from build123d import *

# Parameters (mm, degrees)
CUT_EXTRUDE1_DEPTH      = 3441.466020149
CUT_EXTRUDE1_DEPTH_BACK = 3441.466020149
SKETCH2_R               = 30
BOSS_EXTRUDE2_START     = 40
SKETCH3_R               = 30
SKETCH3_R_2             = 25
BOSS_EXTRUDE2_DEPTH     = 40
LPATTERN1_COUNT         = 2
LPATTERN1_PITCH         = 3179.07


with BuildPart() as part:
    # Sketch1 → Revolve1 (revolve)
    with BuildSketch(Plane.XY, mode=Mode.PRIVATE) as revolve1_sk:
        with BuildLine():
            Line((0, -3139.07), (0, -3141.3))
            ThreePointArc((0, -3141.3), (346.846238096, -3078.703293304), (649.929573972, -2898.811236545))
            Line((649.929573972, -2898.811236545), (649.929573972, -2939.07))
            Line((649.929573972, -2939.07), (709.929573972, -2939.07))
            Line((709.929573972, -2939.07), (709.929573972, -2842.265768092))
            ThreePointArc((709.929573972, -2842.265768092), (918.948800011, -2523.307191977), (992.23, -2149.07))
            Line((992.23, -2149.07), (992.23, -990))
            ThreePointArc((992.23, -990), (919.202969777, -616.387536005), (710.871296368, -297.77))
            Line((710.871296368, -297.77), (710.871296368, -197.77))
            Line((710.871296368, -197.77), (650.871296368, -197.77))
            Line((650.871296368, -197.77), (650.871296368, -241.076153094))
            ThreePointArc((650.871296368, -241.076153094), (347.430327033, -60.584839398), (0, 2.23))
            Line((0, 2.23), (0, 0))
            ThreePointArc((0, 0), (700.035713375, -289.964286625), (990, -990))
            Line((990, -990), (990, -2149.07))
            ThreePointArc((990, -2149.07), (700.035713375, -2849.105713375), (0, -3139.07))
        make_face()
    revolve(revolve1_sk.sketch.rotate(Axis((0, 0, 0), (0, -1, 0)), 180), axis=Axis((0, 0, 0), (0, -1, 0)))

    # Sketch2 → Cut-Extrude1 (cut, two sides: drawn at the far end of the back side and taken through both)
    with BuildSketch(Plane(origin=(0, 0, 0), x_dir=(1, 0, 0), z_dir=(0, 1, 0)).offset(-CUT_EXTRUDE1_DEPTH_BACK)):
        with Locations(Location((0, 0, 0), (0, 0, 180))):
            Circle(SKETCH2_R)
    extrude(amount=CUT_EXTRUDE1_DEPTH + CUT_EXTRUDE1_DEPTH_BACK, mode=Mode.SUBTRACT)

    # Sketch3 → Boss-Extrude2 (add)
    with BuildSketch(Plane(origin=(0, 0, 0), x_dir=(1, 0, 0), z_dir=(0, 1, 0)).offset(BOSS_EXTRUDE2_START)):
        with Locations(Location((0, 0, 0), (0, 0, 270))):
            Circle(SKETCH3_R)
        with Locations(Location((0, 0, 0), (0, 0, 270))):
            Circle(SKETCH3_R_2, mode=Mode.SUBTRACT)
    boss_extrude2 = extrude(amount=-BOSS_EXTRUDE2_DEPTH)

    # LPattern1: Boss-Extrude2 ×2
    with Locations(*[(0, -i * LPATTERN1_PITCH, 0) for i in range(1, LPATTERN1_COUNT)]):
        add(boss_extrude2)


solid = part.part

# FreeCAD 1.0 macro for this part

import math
import FreeCAD as App
import Part
import Sketcher

V = App.Vector
Q = App.Units.Quantity

doc = App.newDocument("Part")
body = doc.addObject("PartDesign::Body", "Body")

# Sketch on XY plane
sketch1 = body.newObject("Sketcher::SketchObject", "Sketch")
sketch1.AttachmentSupport = (doc.getObject("XY_Plane"), [""])
sketch1.MapMode = "FlatFace"
sketch1.addGeometry([
    Part.LineSegment(V(0, -3139.07, 0), V(0, -3141.3, 0)),  # 0
    Part.ArcOfCircle(Part.Circle(V(0, -2149.07, 0), V(0, 0, 1), 992.23), math.radians(-90), math.radians(-49.078904)),  # 1
    Part.LineSegment(V(649.929574, -2898.811237, 0), V(649.929574, -2939.07, 0)),  # 2
    Part.LineSegment(V(649.929574, -2939.07, 0), V(709.929574, -2939.07, 0)),  # 3
    Part.LineSegment(V(709.929574, -2939.07, 0), V(709.929574, -2842.265768, 0)),  # 4
    Part.ArcOfCircle(Part.Circle(V(0, -2149.07, 0), V(0, 0, 1), 992.23), math.radians(-44.316717), math.radians(0)),  # 5
    Part.LineSegment(V(992.23, -2149.07, 0), V(992.23, -990, 0)),  # 6
    Part.ArcOfCircle(Part.Circle(V(0, -990, 0), V(0, 0, 1), 992.23), math.radians(0), math.radians(44.238826)),  # 7
    Part.LineSegment(V(710.871296, -297.77, 0), V(710.871296, -197.77, 0)),  # 8
    Part.LineSegment(V(710.871296, -197.77, 0), V(650.871296, -197.77, 0)),  # 9
    Part.LineSegment(V(650.871296, -197.77, 0), V(650.871296, -241.076153, 0)),  # 10
    Part.ArcOfCircle(Part.Circle(V(0, -990, 0), V(0, 0, 1), 992.23), math.radians(49.006898), math.radians(90)),  # 11
    Part.LineSegment(V(0, 2.23, 0), V(0, 0, 0)),  # 12
    Part.ArcOfCircle(Part.Circle(V(0, -990, 0), V(0, 0, 1), 990), math.radians(0), math.radians(90)),  # 13
    Part.LineSegment(V(990, -990, 0), V(990, -2149.07, 0)),  # 14
    Part.ArcOfCircle(Part.Circle(V(0, -2149.07, 0), V(0, 0, 1), 990), math.radians(-90), math.radians(0)),  # 15
], False)
sketch1.addConstraint([
    Sketcher.Constraint("Coincident", 0, 2, 1, 1),
    Sketcher.Constraint("Coincident", 1, 2, 2, 1),
    Sketcher.Constraint("Coincident", 2, 2, 3, 1),
    Sketcher.Constraint("Coincident", 3, 2, 4, 1),
    Sketcher.Constraint("Coincident", 4, 2, 5, 1),
    Sketcher.Constraint("Coincident", 5, 2, 6, 1),
    Sketcher.Constraint("Coincident", 6, 2, 7, 1),
    Sketcher.Constraint("Coincident", 7, 2, 8, 1),
    Sketcher.Constraint("Coincident", 8, 2, 9, 1),
    Sketcher.Constraint("Coincident", 9, 2, 10, 1),
    Sketcher.Constraint("Coincident", 10, 2, 11, 1),
    Sketcher.Constraint("Coincident", 11, 2, 12, 1),
    Sketcher.Constraint("Coincident", 12, 2, 13, 2),
    Sketcher.Constraint("Coincident", 13, 1, 14, 1),
    Sketcher.Constraint("Coincident", 14, 2, 15, 2),
    Sketcher.Constraint("Coincident", 15, 1, 0, 1),
    Sketcher.Constraint("Vertical", 0),
    Sketcher.Constraint("Vertical", 2),
    Sketcher.Constraint("Horizontal", 3),
    Sketcher.Constraint("Vertical", 4),
    Sketcher.Constraint("Vertical", 6),
    Sketcher.Constraint("Vertical", 8),
    Sketcher.Constraint("Horizontal", 9),
    Sketcher.Constraint("Vertical", 10),
    Sketcher.Constraint("Vertical", 12),
    Sketcher.Constraint("Vertical", 14),
    Sketcher.Constraint("Coincident", 12, 2, -1, 1),
    Sketcher.Constraint("Coincident", 5, 3, 1, 3),
    Sketcher.Constraint("Coincident", 11, 3, 7, 3),
    Sketcher.Constraint("Coincident", 13, 3, 7, 3),
    Sketcher.Constraint("Coincident", 15, 3, 1, 3),
    Sketcher.Constraint("Equal", 1, 5),
    Sketcher.Constraint("Equal", 5, 7),
    Sketcher.Constraint("Equal", 7, 11),
    Sketcher.Constraint("PointOnObject", 1, 3, -2),
    Sketcher.Constraint("PointOnObject", 0, 2, -2),
    Sketcher.Constraint("Horizontal", 13, 3, 6, 2),
    Sketcher.Constraint("Equal", 3, 9),
    Sketcher.Constraint("Equal", 6, 14),
    Sketcher.Constraint("Radius", 13, Q("990 mm")),
    Sketcher.Constraint("DistanceX", 3, 1, 3, 2, Q("60 mm")),
    Sketcher.Constraint("DistanceY", 8, 1, 8, 2, Q("100 mm")),
    Sketcher.Constraint("Radius", 1, Q("992.23 mm")),
    Sketcher.Constraint("DistanceY", 2, 2, 1, 3, Q("790 mm")),
    Sketcher.Constraint("DistanceY", 9, 2, 11, 2, Q("200 mm")),
    Sketcher.Constraint("DistanceY", 3, 2, 14, 2, Q("790 mm")),
    Sketcher.Constraint("DistanceY", 6, 1, 6, 2, Q("1159.07 mm")),
    Sketcher.Constraint("DistanceY", 0, 2, -1, 1, Q("3141.3 mm")),
    Sketcher.Constraint("DistanceY", 4, 1, 4, 2, Q("96.804232 mm")),
])
revolution = body.newObject("PartDesign::Revolution", "Revolution")
revolution.Profile = sketch1
revolution.ReferenceAxis = (sketch1, ["V_Axis"])
revolution.Angle = 360

# Sketch on XZ plane
sketch2 = body.newObject("Sketcher::SketchObject", "Sketch001")
sketch2.AttachmentSupport = (doc.getObject("XZ_Plane"), [""])
sketch2.MapMode = "FlatFace"
sketch2.addGeometry(Part.Circle(V(0, 0, 0), V(0, 0, 1), 30), False)
sketch2.addConstraint([
    Sketcher.Constraint("Coincident", 0, 3, -1, 1),
    Sketcher.Constraint("Diameter", 0, Q("60 mm")),
])
pocket1 = body.newObject("PartDesign::Pocket", "Pocket")
pocket1.Profile = sketch2
pocket1.Type = "ThroughAll"
pocket1.Midplane = True

# Sketch on XZ plane
sketch3 = body.newObject("Sketcher::SketchObject", "Sketch002")
sketch3.AttachmentSupport = (doc.getObject("XZ_Plane"), [""])
sketch3.MapMode = "FlatFace"
sketch3.AttachmentOffset = App.Placement(V(0, 0, -40), App.Rotation())
sketch3.addGeometry([
    Part.Circle(V(0, 0, 0), V(0, 0, 1), 30),
    Part.Circle(V(0, 0, 0), V(0, 0, 1), 25),
], False)
sketch3.addConstraint([
    Sketcher.Constraint("Coincident", 0, 3, -1, 1),
    Sketcher.Constraint("Coincident", 1, 3, -1, 1),
    Sketcher.Constraint("Diameter", 0, Q("60 mm")),
    Sketcher.Constraint("Diameter", 1, Q("50 mm")),
])
pad1 = body.newObject("PartDesign::Pad", "Pad")
pad1.Profile = sketch3
pad1.Length = 40
doc.recompute()

linearpattern = body.newObject("PartDesign::LinearPattern", "LinearPattern")
linearpattern.Originals = [pad1]
linearpattern.Direction = (doc.getObject("Y_Axis"), [""])
linearpattern.Mode = "offset"
linearpattern.Offset = 3179.07
linearpattern.Occurrences = 2
linearpattern.Reversed = True
body.Tip = linearpattern

doc.recompute()
